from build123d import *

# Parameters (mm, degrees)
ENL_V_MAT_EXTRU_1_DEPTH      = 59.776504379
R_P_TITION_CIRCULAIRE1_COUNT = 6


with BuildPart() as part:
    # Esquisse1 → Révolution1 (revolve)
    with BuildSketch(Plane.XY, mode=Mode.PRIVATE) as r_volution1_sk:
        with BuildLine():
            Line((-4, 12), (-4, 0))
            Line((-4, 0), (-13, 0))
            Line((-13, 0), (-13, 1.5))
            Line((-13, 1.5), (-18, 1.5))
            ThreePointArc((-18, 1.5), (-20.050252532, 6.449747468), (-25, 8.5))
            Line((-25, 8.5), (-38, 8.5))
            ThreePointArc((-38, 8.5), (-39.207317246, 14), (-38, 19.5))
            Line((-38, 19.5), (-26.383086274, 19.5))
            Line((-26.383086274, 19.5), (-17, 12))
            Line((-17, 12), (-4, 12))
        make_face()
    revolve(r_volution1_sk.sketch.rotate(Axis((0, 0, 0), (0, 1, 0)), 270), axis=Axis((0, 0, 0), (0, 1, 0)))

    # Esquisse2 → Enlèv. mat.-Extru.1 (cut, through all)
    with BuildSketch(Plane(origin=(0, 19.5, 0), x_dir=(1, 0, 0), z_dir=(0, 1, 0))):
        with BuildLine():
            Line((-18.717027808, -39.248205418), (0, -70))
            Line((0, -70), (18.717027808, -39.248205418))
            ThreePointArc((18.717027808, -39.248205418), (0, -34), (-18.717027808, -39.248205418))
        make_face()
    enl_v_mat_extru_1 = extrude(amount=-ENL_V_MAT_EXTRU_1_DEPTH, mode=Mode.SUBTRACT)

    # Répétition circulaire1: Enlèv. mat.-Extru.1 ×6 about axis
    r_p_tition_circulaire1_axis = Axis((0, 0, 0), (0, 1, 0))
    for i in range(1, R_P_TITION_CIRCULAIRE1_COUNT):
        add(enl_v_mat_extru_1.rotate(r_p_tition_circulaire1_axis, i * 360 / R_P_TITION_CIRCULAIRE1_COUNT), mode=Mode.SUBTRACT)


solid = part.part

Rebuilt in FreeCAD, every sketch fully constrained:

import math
import FreeCAD as App
import Part
import Sketcher
from FreeCAD import Vector

doc = App.newDocument("Part")
body = doc.addObject("PartDesign::Body", "Body")

sketch1 = body.newObject("Sketcher::SketchObject", "Sketch")
sketch1.AttachmentSupport = (doc.getObject("XY_Plane"), [""])
sketch1.MapMode = "FlatFace"
sketch1.addGeometry(Part.LineSegment(Vector(-4, 0, 0), Vector(-4, 12, 0)), False)
sketch1.addGeometry(Part.LineSegment(Vector(-4, 12, 0), Vector(-17, 12, 0)), False)
sketch1.addGeometry(Part.LineSegment(Vector(-17, 12, 0), Vector(-26.4, 19.5, 0)), False)
sketch1.addGeometry(Part.LineSegment(Vector(-26.4, 19.5, 0), Vector(-38, 19.5, 0)), False)
sketch1.addGeometry(Part.ArcOfCircle(Part.Circle(Vector(-26.1, 14, 0), Vector(0, 0, 1), 13.1), math.radians(155), math.radians(205)), False)
sketch1.addGeometry(Part.LineSegment(Vector(-38, 8.5, 0), Vector(-25, 8.5, 0)), False)
sketch1.addGeometry(Part.ArcOfCircle(Part.Circle(Vector(-25, 1.5, 0), Vector(0, 0, 1), 7), math.radians(0), math.radians(90)), False)
sketch1.addGeometry(Part.LineSegment(Vector(-18, 1.5, 0), Vector(-13, 1.5, 0)), False)
sketch1.addGeometry(Part.LineSegment(Vector(-13, 1.5, 0), Vector(-13, 0, 0)), False)
sketch1.addGeometry(Part.LineSegment(Vector(-13, 0, 0), Vector(-4, 0, 0)), False)
sketch1.addConstraint(Sketcher.Constraint("Coincident", 0, 2, 1, 1))
sketch1.addConstraint(Sketcher.Constraint("Coincident", 1, 2, 2, 1))
sketch1.addConstraint(Sketcher.Constraint("Coincident", 2, 2, 3, 1))
sketch1.addConstraint(Sketcher.Constraint("Coincident", 3, 2, 4, 1))
sketch1.addConstraint(Sketcher.Constraint("Coincident", 4, 2, 5, 1))
sketch1.addConstraint(Sketcher.Constraint("Tangent", 5, 2, 6, 2))
sketch1.addConstraint(Sketcher.Constraint("Coincident", 6, 1, 7, 1))
sketch1.addConstraint(Sketcher.Constraint("Coincident", 7, 2, 8, 1))
sketch1.addConstraint(Sketcher.Constraint("Coincident", 8, 2, 9, 1))
sketch1.addConstraint(Sketcher.Constraint("Coincident", 9, 2, 0, 1))
sketch1.addConstraint(Sketcher.Constraint("Vertical", 0))
sketch1.addConstraint(Sketcher.Constraint("Horizontal", 1))
sketch1.addConstraint(Sketcher.Constraint("Horizontal", 3))
sketch1.addConstraint(Sketcher.Constraint("Horizontal", 5))
sketch1.addConstraint(Sketcher.Constraint("Horizontal", 7))
sketch1.addConstraint(Sketcher.Constraint("Vertical", 8))
sketch1.addConstraint(Sketcher.Constraint("Horizontal", 9))
sketch1.addConstraint(Sketcher.Constraint("PointOnObject", 8, 2, -1))
sketch1.addConstraint(Sketcher.Constraint("Vertical", 3, 2, 4, 2))
sketch1.addConstraint(Sketcher.Constraint("Equal", 1, 5))
sketch1.addConstraint(Sketcher.Constraint("Radius", 6, 7.0))
sketch1.addConstraint(Sketcher.Constraint("DistanceX", 1, 2, 1, 1, 13.0))
sketch1.addConstraint(Sketcher.Constraint("DistanceX", 7, 1, 7, 2, 5.0))
sketch1.addConstraint(Sketcher.Constraint("DistanceX", 9, 1, 9, 2, 9.0))
sketch1.addConstraint(Sketcher.Constraint("DistanceY", 0, 1, 0, 2, 12.0))
sketch1.addConstraint(Sketcher.Constraint("DistanceY", 8, 2, 8, 1, 1.5))
sketch1.addConstraint(Sketcher.Constraint("DistanceY", -1, 1, 4, 3, 14.0))
sketch1.addConstraint(Sketcher.Constraint("DistanceX", 6, 3, -1, 1, 25.0))
sketch1.addConstraint(Sketcher.Constraint("DistanceY", 6, 3, 2, 2, 18.0))
sketch1.addConstraint(Sketcher.Constraint("Radius", 4, 13.131435))
sketch1.addConstraint(Sketcher.Constraint("DistanceX", 3, 2, 3, 1, 11.616914))
revolution = body.newObject("PartDesign::Revolution", "Revolution")
revolution.Profile = sketch1
revolution.ReferenceAxis = (sketch1, ["V_Axis"])
revolution.Angle = 360

sketch2 = body.newObject("Sketcher::SketchObject", "Sketch001")
sketch2.AttachmentSupport = (doc.getObject("XZ_Plane"), [""])
sketch2.MapMode = "FlatFace"
sketch2.AttachmentOffset = App.Placement(Vector(0, 0, -19.5), App.Rotation())
sketch2.addGeometry(Part.LineSegment(Vector(-19, 39, 0), Vector(0, 70, 0)), False)
sketch2.addGeometry(Part.LineSegment(Vector(0, 70, 0), Vector(19, 39, 0)), False)
sketch2.addGeometry(Part.ArcOfCircle(Part.Circle(Vector(0, 70, 0), Vector(0, 0, 1), 36), math.radians(-121), math.radians(-59)), False)
sketch2.addConstraint(Sketcher.Constraint("Coincident", 0, 2, 1, 1))
sketch2.addConstraint(Sketcher.Constraint("Coincident", 1, 2, 2, 2))
sketch2.addConstraint(Sketcher.Constraint("Coincident", 2, 1, 0, 1))
sketch2.addConstraint(Sketcher.Constraint("Coincident", 0, 2, 2, 3))
sketch2.addConstraint(Sketcher.Constraint("Symmetric", 1, 2, 2, 1, -2))
sketch2.addConstraint(Sketcher.Constraint("Radius", 2, 36.0))
sketch2.addConstraint(Sketcher.Constraint("DistanceY", -1, 1, 2, 3, 70.0))
sketch2.addConstraint(Sketcher.Constraint("DistanceX", -1, 1, 1, 2, 18.717028))
pocket1 = body.newObject("PartDesign::Pocket", "Pocket")
pocket1.Profile = sketch2
pocket1.Type = "ThroughAll"
pocket1.Reversed = True
doc.recompute()

polarpattern = body.newObject("PartDesign::PolarPattern", "PolarPattern")
polarpattern.Originals = [pocket1]
polarpattern.Axis = (doc.getObject("Y_Axis"), [""])
polarpattern.Angle = 360
polarpattern.Occurrences = 6
body.Tip = polarpattern

doc.recompute()
